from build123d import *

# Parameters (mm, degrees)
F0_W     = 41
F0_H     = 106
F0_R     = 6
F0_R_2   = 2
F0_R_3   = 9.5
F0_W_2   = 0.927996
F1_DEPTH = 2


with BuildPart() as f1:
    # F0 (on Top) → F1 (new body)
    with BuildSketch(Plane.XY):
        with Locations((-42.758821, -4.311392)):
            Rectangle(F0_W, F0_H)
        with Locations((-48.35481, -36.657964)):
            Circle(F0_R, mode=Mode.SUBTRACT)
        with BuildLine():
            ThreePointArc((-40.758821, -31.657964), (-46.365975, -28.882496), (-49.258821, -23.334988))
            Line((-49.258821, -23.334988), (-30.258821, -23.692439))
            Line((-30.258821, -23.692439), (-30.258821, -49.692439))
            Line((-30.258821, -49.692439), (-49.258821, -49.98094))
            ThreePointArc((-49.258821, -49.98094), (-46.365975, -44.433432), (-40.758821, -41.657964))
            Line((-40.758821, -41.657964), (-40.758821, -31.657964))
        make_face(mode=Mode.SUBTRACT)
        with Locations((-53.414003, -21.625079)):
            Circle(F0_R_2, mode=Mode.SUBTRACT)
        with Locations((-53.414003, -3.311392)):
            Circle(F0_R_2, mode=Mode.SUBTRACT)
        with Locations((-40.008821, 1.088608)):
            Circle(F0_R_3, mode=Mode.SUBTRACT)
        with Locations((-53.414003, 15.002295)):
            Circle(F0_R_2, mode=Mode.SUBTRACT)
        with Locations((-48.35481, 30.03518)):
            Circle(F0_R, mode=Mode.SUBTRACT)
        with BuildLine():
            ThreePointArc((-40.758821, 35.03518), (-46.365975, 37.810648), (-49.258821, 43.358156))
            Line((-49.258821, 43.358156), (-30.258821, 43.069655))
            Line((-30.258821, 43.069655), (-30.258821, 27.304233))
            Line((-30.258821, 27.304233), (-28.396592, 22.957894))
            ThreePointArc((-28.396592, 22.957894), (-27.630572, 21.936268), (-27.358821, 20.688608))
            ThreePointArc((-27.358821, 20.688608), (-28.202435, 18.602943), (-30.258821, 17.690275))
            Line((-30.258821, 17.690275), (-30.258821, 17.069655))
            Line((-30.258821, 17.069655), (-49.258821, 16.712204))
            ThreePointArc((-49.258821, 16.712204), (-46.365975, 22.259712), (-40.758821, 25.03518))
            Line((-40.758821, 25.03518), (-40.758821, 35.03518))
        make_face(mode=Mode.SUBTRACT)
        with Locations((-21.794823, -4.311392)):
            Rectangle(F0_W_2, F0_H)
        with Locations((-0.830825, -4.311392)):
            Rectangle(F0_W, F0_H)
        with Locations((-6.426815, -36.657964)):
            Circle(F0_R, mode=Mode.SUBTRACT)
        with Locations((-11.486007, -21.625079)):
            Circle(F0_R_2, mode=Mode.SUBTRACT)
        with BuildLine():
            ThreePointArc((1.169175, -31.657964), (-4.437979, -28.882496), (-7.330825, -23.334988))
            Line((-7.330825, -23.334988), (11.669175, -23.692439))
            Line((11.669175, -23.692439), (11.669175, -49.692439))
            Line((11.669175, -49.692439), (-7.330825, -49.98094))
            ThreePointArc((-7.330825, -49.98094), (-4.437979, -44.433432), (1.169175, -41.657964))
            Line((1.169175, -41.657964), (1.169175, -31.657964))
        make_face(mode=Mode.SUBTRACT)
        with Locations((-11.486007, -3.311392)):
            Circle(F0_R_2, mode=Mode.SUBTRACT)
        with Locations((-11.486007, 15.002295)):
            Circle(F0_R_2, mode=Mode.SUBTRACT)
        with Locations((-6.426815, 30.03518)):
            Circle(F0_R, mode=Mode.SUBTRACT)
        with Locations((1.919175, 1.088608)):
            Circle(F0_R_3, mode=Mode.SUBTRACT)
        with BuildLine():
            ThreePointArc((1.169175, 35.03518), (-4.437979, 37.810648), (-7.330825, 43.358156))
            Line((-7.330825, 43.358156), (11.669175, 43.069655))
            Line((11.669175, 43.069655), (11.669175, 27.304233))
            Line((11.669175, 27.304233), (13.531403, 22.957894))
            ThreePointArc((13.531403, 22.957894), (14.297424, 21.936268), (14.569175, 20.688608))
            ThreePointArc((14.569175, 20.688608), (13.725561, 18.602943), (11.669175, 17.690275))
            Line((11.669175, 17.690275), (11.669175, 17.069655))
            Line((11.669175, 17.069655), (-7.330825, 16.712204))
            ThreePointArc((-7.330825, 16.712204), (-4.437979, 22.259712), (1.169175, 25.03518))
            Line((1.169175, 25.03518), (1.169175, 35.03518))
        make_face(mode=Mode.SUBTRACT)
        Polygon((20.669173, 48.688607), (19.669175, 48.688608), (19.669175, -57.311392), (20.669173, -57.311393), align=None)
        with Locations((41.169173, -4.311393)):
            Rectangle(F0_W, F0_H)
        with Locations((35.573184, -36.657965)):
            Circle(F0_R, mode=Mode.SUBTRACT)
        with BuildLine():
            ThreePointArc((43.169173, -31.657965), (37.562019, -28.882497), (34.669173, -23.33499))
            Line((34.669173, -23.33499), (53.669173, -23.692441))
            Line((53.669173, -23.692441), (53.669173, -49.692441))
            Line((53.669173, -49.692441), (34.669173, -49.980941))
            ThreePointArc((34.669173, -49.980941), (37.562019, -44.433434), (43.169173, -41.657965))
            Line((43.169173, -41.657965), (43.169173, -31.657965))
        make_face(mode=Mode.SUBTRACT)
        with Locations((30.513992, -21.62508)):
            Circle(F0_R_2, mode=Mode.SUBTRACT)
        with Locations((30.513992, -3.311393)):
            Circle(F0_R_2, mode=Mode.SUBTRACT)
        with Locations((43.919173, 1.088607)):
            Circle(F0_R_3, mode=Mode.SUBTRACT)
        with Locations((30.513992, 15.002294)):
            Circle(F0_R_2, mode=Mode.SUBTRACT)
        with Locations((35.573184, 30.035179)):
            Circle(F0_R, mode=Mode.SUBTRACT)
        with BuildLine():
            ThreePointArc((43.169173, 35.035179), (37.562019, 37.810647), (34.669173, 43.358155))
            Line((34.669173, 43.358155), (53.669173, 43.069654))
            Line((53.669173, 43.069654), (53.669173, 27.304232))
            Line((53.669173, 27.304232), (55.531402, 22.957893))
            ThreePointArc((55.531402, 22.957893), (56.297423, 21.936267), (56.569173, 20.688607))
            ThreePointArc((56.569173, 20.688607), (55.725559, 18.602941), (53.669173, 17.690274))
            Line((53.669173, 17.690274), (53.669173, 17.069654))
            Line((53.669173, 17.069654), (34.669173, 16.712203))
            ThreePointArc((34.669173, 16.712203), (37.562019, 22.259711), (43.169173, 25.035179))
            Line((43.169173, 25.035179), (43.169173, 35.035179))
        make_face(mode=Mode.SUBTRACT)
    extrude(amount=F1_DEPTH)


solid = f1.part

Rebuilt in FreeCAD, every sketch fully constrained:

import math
import FreeCAD as App
import Part
import Sketcher
from FreeCAD import Vector

doc = App.newDocument("Part")
body = doc.addObject("PartDesign::Body", "Body")

# Sketch on XY plane
sketch1 = doc.addObject("Sketcher::SketchObject", "Sketch")
body.addObject(sketch1)
sketch1.AttachmentSupport = (doc.XY_Plane, [""])
sketch1.MapMode = "FlatFace"
sketch1.addGeometry(Part.LineSegment(Vector(-63.3, 48.7, 0), Vector(-63.3, -57.3, 0)), False)
sketch1.addGeometry(Part.LineSegment(Vector(-63.3, -57.3, 0), Vector(19.7, -57.3, 0)), False)
sketch1.addGeometry(Part.LineSegment(Vector(19.7, -57.3, 0), Vector(20.7, -57.3, 0)), False)
sketch1.addGeometry(Part.LineSegment(Vector(20.7, -57.3, 0), Vector(61.7, -57.3, 0)), False)
sketch1.addGeometry(Part.LineSegment(Vector(61.7, -57.3, 0), Vector(61.7, 48.7, 0)), False)
sketch1.addGeometry(Part.LineSegment(Vector(61.7, 48.7, 0), Vector(20.7, 48.7, 0)), False)
sketch1.addGeometry(Part.LineSegment(Vector(20.7, 48.7, 0), Vector(19.7, 48.7, 0)), False)
sketch1.addGeometry(Part.LineSegment(Vector(19.7, 48.7, 0), Vector(-63.3, 48.7, 0)), False)
sketch1.addGeometry(Part.Circle(Vector(-48.4, -36.7, 0), Vector(0, 0, 1), 6), False)
sketch1.addGeometry(Part.LineSegment(Vector(-40.8, -41.7, 0), Vector(-40.8, -31.7, 0)), False)
sketch1.addGeometry(Part.ArcOfCircle(Part.Circle(Vector(-39.3, -21.7, 0), Vector(0, 0, 1), 10.1), math.radians(-171), math.radians(-98)), False)
sketch1.addGeometry(Part.LineSegment(Vector(-49.3, -23.3, 0), Vector(-30.3, -23.7, 0)), False)
sketch1.addGeometry(Part.LineSegment(Vector(-30.3, -23.7, 0), Vector(-30.3, -49.7, 0)), False)
sketch1.addGeometry(Part.LineSegment(Vector(-30.3, -49.7, 0), Vector(-49.3, -50, 0)), False)
sketch1.addGeometry(Part.ArcOfCircle(Part.Circle(Vector(-39.3, -51.6, 0), Vector(0, 0, 1), 10.1), math.radians(98), math.radians(171)), False)
sketch1.addGeometry(Part.Circle(Vector(-6.4, -36.7, 0), Vector(0, 0, 1), 6), False)
sketch1.addGeometry(Part.Circle(Vector(-53.4, -21.6, 0), Vector(0, 0, 1), 2), False)
sketch1.addGeometry(Part.Circle(Vector(-11.5, -21.6, 0), Vector(0, 0, 1), 2), False)
sketch1.addGeometry(Part.LineSegment(Vector(1.2, -41.7, 0), Vector(1.2, -31.7, 0)), False)
sketch1.addGeometry(Part.ArcOfCircle(Part.Circle(Vector(2.6, -21.7, 0), Vector(0, 0, 1), 10.1), math.radians(-171), math.radians(-98)), False)
sketch1.addGeometry(Part.LineSegment(Vector(-7.3, -23.3, 0), Vector(11.7, -23.7, 0)), False)
sketch1.addGeometry(Part.LineSegment(Vector(11.7, -23.7, 0), Vector(11.7, -49.7, 0)), False)
sketch1.addGeometry(Part.LineSegment(Vector(11.7, -49.7, 0), Vector(-7.3, -50, 0)), False)
sketch1.addGeometry(Part.ArcOfCircle(Part.Circle(Vector(2.6, -51.6, 0), Vector(0, 0, 1), 10.1), math.radians(98), math.radians(171)), False)
sketch1.addGeometry(Part.Circle(Vector(35.6, -36.7, 0), Vector(0, 0, 1), 6), False)
sketch1.addGeometry(Part.LineSegment(Vector(43.2, -41.7, 0), Vector(43.2, -31.7, 0)), False)
sketch1.addGeometry(Part.ArcOfCircle(Part.Circle(Vector(44.6, -21.7, 0), Vector(0, 0, 1), 10.1), math.radians(-171), math.radians(-98)), False)
sketch1.addGeometry(Part.LineSegment(Vector(34.7, -23.3, 0), Vector(53.7, -23.7, 0)), False)
sketch1.addGeometry(Part.LineSegment(Vector(53.7, -23.7, 0), Vector(53.7, -49.7, 0)), False)
sketch1.addGeometry(Part.LineSegment(Vector(53.7, -49.7, 0), Vector(34.7, -50, 0)), False)
sketch1.addGeometry(Part.ArcOfCircle(Part.Circle(Vector(44.6, -51.6, 0), Vector(0, 0, 1), 10.1), math.radians(98), math.radians(171)), False)
sketch1.addGeometry(Part.Circle(Vector(30.5, -21.6, 0), Vector(0, 0, 1), 2), False)
sketch1.addGeometry(Part.Circle(Vector(30.5, -3.3, 0), Vector(0, 0, 1), 2), False)
sketch1.addGeometry(Part.Circle(Vector(-53.4, -3.3, 0), Vector(0, 0, 1), 2), False)
sketch1.addGeometry(Part.Circle(Vector(-40, 1.1, 0), Vector(0, 0, 1), 9.5), False)
sketch1.addGeometry(Part.Circle(Vector(-53.4, 15, 0), Vector(0, 0, 1), 2), False)
sketch1.addGeometry(Part.Circle(Vector(-11.5, -3.3, 0), Vector(0, 0, 1), 2), False)
sketch1.addGeometry(Part.Circle(Vector(-11.5, 15, 0), Vector(0, 0, 1), 2), False)
sketch1.addGeometry(Part.Circle(Vector(-48.4, 30, 0), Vector(0, 0, 1), 6), False)
sketch1.addGeometry(Part.LineSegment(Vector(-40.8, 25, 0), Vector(-40.8, 35, 0)), False)
sketch1.addGeometry(Part.ArcOfCircle(Part.Circle(Vector(-39.3, 45, 0), Vector(0, 0, 1), 10.1), math.radians(-171), math.radians(-98)), False)
sketch1.addGeometry(Part.LineSegment(Vector(-49.3, 43.4, 0), Vector(-30.3, 43.1, 0)), False)
sketch1.addGeometry(Part.LineSegment(Vector(-30.3, 43.1, 0), Vector(-30.3, 27.3, 0)), False)
sketch1.addGeometry(Part.LineSegment(Vector(-30.3, 27.3, 0), Vector(-28.4, 23, 0)), False)
sketch1.addGeometry(Part.ArcOfCircle(Part.Circle(Vector(-30.4, 20.7, 0), Vector(0, 0, 1), 3), math.radians(0), math.radians(49)), False)
sketch1.addGeometry(Part.ArcOfCircle(Part.Circle(Vector(-30.4, 20.7, 0), Vector(0, 0, 1), 3), math.radians(-88), math.radians(0)), False)
sketch1.addGeometry(Part.LineSegment(Vector(-30.3, 17.7, 0), Vector(-30.3, 17.1, 0)), False)
sketch1.addGeometry(Part.LineSegment(Vector(-30.3, 17.1, 0), Vector(-49.3, 16.7, 0)), False)
sketch1.addGeometry(Part.ArcOfCircle(Part.Circle(Vector(-39.3, 15.1, 0), Vector(0, 0, 1), 10.1), math.radians(98), math.radians(171)), False)
sketch1.addGeometry(Part.Circle(Vector(-6.4, 30, 0), Vector(0, 0, 1), 6), False)
sketch1.addGeometry(Part.Circle(Vector(1.9, 1.1, 0), Vector(0, 0, 1), 9.5), False)
sketch1.addGeometry(Part.Circle(Vector(43.9, 1.1, 0), Vector(0, 0, 1), 9.5), False)
sketch1.addGeometry(Part.Circle(Vector(30.5, 15, 0), Vector(0, 0, 1), 2), False)
sketch1.addGeometry(Part.LineSegment(Vector(1.2, 25, 0), Vector(1.2, 35, 0)), False)
sketch1.addGeometry(Part.ArcOfCircle(Part.Circle(Vector(2.6, 45, 0), Vector(0, 0, 1), 10.1), math.radians(-171), math.radians(-98)), False)
sketch1.addGeometry(Part.LineSegment(Vector(-7.3, 43.4, 0), Vector(11.7, 43.1, 0)), False)
sketch1.addGeometry(Part.LineSegment(Vector(11.7, 43.1, 0), Vector(11.7, 27.3, 0)), False)
sketch1.addGeometry(Part.LineSegment(Vector(11.7, 27.3, 0), Vector(13.5, 23, 0)), False)
sketch1.addGeometry(Part.ArcOfCircle(Part.Circle(Vector(11.6, 20.7, 0), Vector(0, 0, 1), 3), math.radians(0), math.radians(49)), False)
sketch1.addGeometry(Part.ArcOfCircle(Part.Circle(Vector(11.6, 20.7, 0), Vector(0, 0, 1), 3), math.radians(-88), math.radians(0)), False)
sketch1.addGeometry(Part.LineSegment(Vector(11.7, 17.7, 0), Vector(11.7, 17.1, 0)), False)
sketch1.addGeometry(Part.LineSegment(Vector(11.7, 17.1, 0), Vector(-7.3, 16.7, 0)), False)
sketch1.addGeometry(Part.ArcOfCircle(Part.Circle(Vector(2.6, 15.1, 0), Vector(0, 0, 1), 10.1), math.radians(98), math.radians(171)), False)
sketch1.addGeometry(Part.Circle(Vector(35.6, 30, 0), Vector(0, 0, 1), 6), False)
sketch1.addGeometry(Part.LineSegment(Vector(43.2, 25, 0), Vector(43.2, 35, 0)), False)
sketch1.addGeometry(Part.ArcOfCircle(Part.Circle(Vector(44.6, 45, 0), Vector(0, 0, 1), 10.1), math.radians(-171), math.radians(-98)), False)
sketch1.addGeometry(Part.LineSegment(Vector(34.7, 43.4, 0), Vector(53.7, 43.1, 0)), False)
sketch1.addGeometry(Part.LineSegment(Vector(53.7, 43.1, 0), Vector(53.7, 27.3, 0)), False)
sketch1.addGeometry(Part.LineSegment(Vector(53.7, 27.3, 0), Vector(55.5, 23, 0)), False)
sketch1.addGeometry(Part.ArcOfCircle(Part.Circle(Vector(53.6, 20.7, 0), Vector(0, 0, 1), 3), math.radians(0), math.radians(49)), False)
sketch1.addGeometry(Part.ArcOfCircle(Part.Circle(Vector(53.6, 20.7, 0), Vector(0, 0, 1), 3), math.radians(-88), math.radians(0)), False)
sketch1.addGeometry(Part.LineSegment(Vector(53.7, 17.7, 0), Vector(53.7, 17.1, 0)), False)
sketch1.addGeometry(Part.LineSegment(Vector(53.7, 17.1, 0), Vector(34.7, 16.7, 0)), False)
sketch1.addGeometry(Part.ArcOfCircle(Part.Circle(Vector(44.6, 15.1, 0), Vector(0, 0, 1), 10.1), math.radians(98), math.radians(171)), False)
sketch1.addConstraint(Sketcher.Constraint("Coincident", 0, 2, 1, 1))
sketch1.addConstraint(Sketcher.Constraint("Coincident", 1, 2, 2, 1))
sketch1.addConstraint(Sketcher.Constraint("Coincident", 2, 2, 3, 1))
sketch1.addConstraint(Sketcher.Constraint("Coincident", 3, 2, 4, 1))
sketch1.addConstraint(Sketcher.Constraint("Coincident", 4, 2, 5, 1))
sketch1.addConstraint(Sketcher.Constraint("Coincident", 5, 2, 6, 1))
sketch1.addConstraint(Sketcher.Constraint("Coincident", 6, 2, 7, 1))
sketch1.addConstraint(Sketcher.Constraint("Coincident", 7, 2, 0, 1))
sketch1.addConstraint(Sketcher.Constraint("Coincident", 9, 2, 10, 2))
sketch1.addConstraint(Sketcher.Constraint("Coincident", 10, 1, 11, 1))
sketch1.addConstraint(Sketcher.Constraint("Coincident", 11, 2, 12, 1))
sketch1.addConstraint(Sketcher.Constraint("Coincident", 12, 2, 13, 1))
sketch1.addConstraint(Sketcher.Constraint("Coincident", 13, 2, 14, 2))
sketch1.addConstraint(Sketcher.Constraint("Coincident", 14, 1, 9, 1))
sketch1.addConstraint(Sketcher.Constraint("Coincident", 18, 2, 19, 2))
sketch1.addConstraint(Sketcher.Constraint("Coincident", 19, 1, 20, 1))
sketch1.addConstraint(Sketcher.Constraint("Coincident", 20, 2, 21, 1))
sketch1.addConstraint(Sketcher.Constraint("Coincident", 21, 2, 22, 1))
sketch1.addConstraint(Sketcher.Constraint("Coincident", 22, 2, 23, 2))
sketch1.addConstraint(Sketcher.Constraint("Coincident", 23, 1, 18, 1))
sketch1.addConstraint(Sketcher.Constraint("Coincident", 25, 2, 26, 2))
sketch1.addConstraint(Sketcher.Constraint("Coincident", 26, 1, 27, 1))
sketch1.addConstraint(Sketcher.Constraint("Coincident", 27, 2, 28, 1))
sketch1.addConstraint(Sketcher.Constraint("Coincident", 28, 2, 29, 1))
sketch1.addConstraint(Sketcher.Constraint("Coincident", 29, 2, 30, 2))
sketch1.addConstraint(Sketcher.Constraint("Coincident", 30, 1, 25, 1))
sketch1.addConstraint(Sketcher.Constraint("Coincident", 39, 2, 40, 2))
sketch1.addConstraint(Sketcher.Constraint("Coincident", 40, 1, 41, 1))
sketch1.addConstraint(Sketcher.Constraint("Coincident", 41, 2, 42, 1))
sketch1.addConstraint(Sketcher.Constraint("Coincident", 42, 2, 43, 1))
sketch1.addConstraint(Sketcher.Constraint("Coincident", 43, 2, 44, 2))
sketch1.addConstraint(Sketcher.Constraint("Tangent", 44, 1, 45, 2))
sketch1.addConstraint(Sketcher.Constraint("Coincident", 45, 1, 46, 1))
sketch1.addConstraint(Sketcher.Constraint("Coincident", 46, 2, 47, 1))
sketch1.addConstraint(Sketcher.Constraint("Coincident", 47, 2, 48, 2))
sketch1.addConstraint(Sketcher.Constraint("Coincident", 48, 1, 39, 1))
sketch1.addConstraint(Sketcher.Constraint("Coincident", 53, 2, 54, 2))
sketch1.addConstraint(Sketcher.Constraint("Coincident", 54, 1, 55, 1))
sketch1.addConstraint(Sketcher.Constraint("Coincident", 55, 2, 56, 1))
sketch1.addConstraint(Sketcher.Constraint("Coincident", 56, 2, 57, 1))
sketch1.addConstraint(Sketcher.Constraint("Coincident", 57, 2, 58, 2))
sketch1.addConstraint(Sketcher.Constraint("Tangent", 58, 1, 59, 2))
sketch1.addConstraint(Sketcher.Constraint("Coincident", 59, 1, 60, 1))
sketch1.addConstraint(Sketcher.Constraint("Coincident", 60, 2, 61, 1))
sketch1.addConstraint(Sketcher.Constraint("Coincident", 61, 2, 62, 2))
sketch1.addConstraint(Sketcher.Constraint("Coincident", 62, 1, 53, 1))
sketch1.addConstraint(Sketcher.Constraint("Coincident", 64, 2, 65, 2))
sketch1.addConstraint(Sketcher.Constraint("Coincident", 65, 1, 66, 1))
sketch1.addConstraint(Sketcher.Constraint("Coincident", 66, 2, 67, 1))
sketch1.addConstraint(Sketcher.Constraint("Coincident", 67, 2, 68, 1))
sketch1.addConstraint(Sketcher.Constraint("Coincident", 68, 2, 69, 2))
sketch1.addConstraint(Sketcher.Constraint("Tangent", 69, 1, 70, 2))
sketch1.addConstraint(Sketcher.Constraint("Coincident", 70, 1, 71, 1))
sketch1.addConstraint(Sketcher.Constraint("Coincident", 71, 2, 72, 1))
sketch1.addConstraint(Sketcher.Constraint("Coincident", 72, 2, 73, 2))
sketch1.addConstraint(Sketcher.Constraint("Coincident", 73, 1, 64, 1))
sketch1.addConstraint(Sketcher.Constraint("Vertical", 0))
sketch1.addConstraint(Sketcher.Constraint("Horizontal", 1))
sketch1.addConstraint(Sketcher.Constraint("Horizontal", 2))
sketch1.addConstraint(Sketcher.Constraint("Horizontal", 3))
sketch1.addConstraint(Sketcher.Constraint("Vertical", 4))
sketch1.addConstraint(Sketcher.Constraint("Horizontal", 5))
sketch1.addConstraint(Sketcher.Constraint("Horizontal", 6))
sketch1.addConstraint(Sketcher.Constraint("Horizontal", 7))
sketch1.addConstraint(Sketcher.Constraint("Vertical", 9))
sketch1.addConstraint(Sketcher.Constraint("Vertical", 12))
sketch1.addConstraint(Sketcher.Constraint("Vertical", 18))
sketch1.addConstraint(Sketcher.Constraint("Vertical", 21))
sketch1.addConstraint(Sketcher.Constraint("Vertical", 25))
sketch1.addConstraint(Sketcher.Constraint("Vertical", 28))
sketch1.addConstraint(Sketcher.Constraint("Vertical", 39))
sketch1.addConstraint(Sketcher.Constraint("Vertical", 42))
sketch1.addConstraint(Sketcher.Constraint("Vertical", 46))
sketch1.addConstraint(Sketcher.Constraint("Vertical", 53))
sketch1.addConstraint(Sketcher.Constraint("Vertical", 56))
sketch1.addConstraint(Sketcher.Constraint("Vertical", 60))
sketch1.addConstraint(Sketcher.Constraint("Vertical", 64))
sketch1.addConstraint(Sketcher.Constraint("Vertical", 67))
sketch1.addConstraint(Sketcher.Constraint("Vertical", 71))
sketch1.addConstraint(Sketcher.Constraint("Equal", 10, 14))
sketch1.addConstraint(Sketcher.Constraint("Equal", 8, 15))
sketch1.addConstraint(Sketcher.Constraint("Equal", 16, 17))
sketch1.addConstraint(Sketcher.Constraint("Equal", 14, 19))
sketch1.addConstraint(Sketcher.Constraint("Equal", 19, 23))
sketch1.addConstraint(Sketcher.Constraint("Equal", 15, 24))
sketch1.addConstraint(Sketcher.Constraint("Equal", 23, 26))
sketch1.addConstraint(Sketcher.Constraint("Equal", 17, 31))
sketch1.addConstraint(Sketcher.Constraint("Equal", 31, 32))
sketch1.addConstraint(Sketcher.Constraint("Equal", 32, 33))
sketch1.addConstraint(Sketcher.Constraint("Equal", 33, 35))
sketch1.addConstraint(Sketcher.Constraint("Equal", 35, 36))
sketch1.addConstraint(Sketcher.Constraint("Equal", 36, 37))
sketch1.addConstraint(Sketcher.Constraint("Equal", 24, 38))
sketch1.addConstraint(Sketcher.Constraint("Equal", 26, 40))
sketch1.addConstraint(Sketcher.Constraint("Equal", 40, 48))
sketch1.addConstraint(Sketcher.Constraint("Equal", 38, 49))
sketch1.addConstraint(Sketcher.Constraint("Equal", 34, 50))
sketch1.addConstraint(Sketcher.Constraint("Equal", 50, 51))
sketch1.addConstraint(Sketcher.Constraint("Equal", 37, 52))
sketch1.addConstraint(Sketcher.Constraint("Equal", 48, 54))
sketch1.addConstraint(Sketcher.Constraint("Equal", 45, 58))
sketch1.addConstraint(Sketcher.Constraint("Equal", 58, 59))
sketch1.addConstraint(Sketcher.Constraint("Equal", 54, 62))
sketch1.addConstraint(Sketcher.Constraint("Equal", 49, 63))
sketch1.addConstraint(Sketcher.Constraint("Equal", 62, 65))
sketch1.addConstraint(Sketcher.Constraint("Equal", 59, 70))
sketch1.addConstraint(Sketcher.Constraint("Equal", 65, 73))
sketch1.addConstraint(Sketcher.Constraint("Parallel", 11, 20))
sketch1.addConstraint(Sketcher.Constraint("Parallel", 13, 22))
sketch1.addConstraint(Sketcher.Constraint("Parallel", 20, 27))
sketch1.addConstraint(Sketcher.Constraint("Parallel", 22, 29))
sketch1.addConstraint(Sketcher.Constraint("Parallel", 41, 55))
sketch1.addConstraint(Sketcher.Constraint("Parallel", 43, 57))
sketch1.addConstraint(Sketcher.Constraint("Parallel", 47, 61))
sketch1.addConstraint(Sketcher.Constraint("Parallel", 55, 66))
sketch1.addConstraint(Sketcher.Constraint("Parallel", 57, 68))
sketch1.addConstraint(Sketcher.Constraint("Parallel", 61, 72))
sketch1.addConstraint(Sketcher.Constraint("Horizontal", 8, 3, 15, 3))
sketch1.addConstraint(Sketcher.Constraint("Horizontal", 16, 3, 17, 3))
sketch1.addConstraint(Sketcher.Constraint("Horizontal", 10, 3, 19, 3))
sketch1.addConstraint(Sketcher.Constraint("Horizontal", 14, 3, 23, 3))
sketch1.addConstraint(Sketcher.Constraint("Horizontal", 15, 3, 24, 3))
sketch1.addConstraint(Sketcher.Constraint("Horizontal", 19, 3, 26, 3))
sketch1.addConstraint(Sketcher.Constraint("Horizontal", 17, 3, 31, 3))
sketch1.addConstraint(Sketcher.Constraint("Horizontal", 32, 3, 33, 3))
sketch1.addConstraint(Sketcher.Constraint("Horizontal", 33, 3, 36, 3))
sketch1.addConstraint(Sketcher.Constraint("Horizontal", 35, 3, 37, 3))
sketch1.addConstraint(Sketcher.Constraint("Horizontal", 38, 3, 49, 3))
sketch1.addConstraint(Sketcher.Constraint("Horizontal", 34, 3, 50, 3))
sketch1.addConstraint(Sketcher.Constraint("Horizontal", 50, 3, 51, 3))
sketch1.addConstraint(Sketcher.Constraint("Horizontal", 37, 3, 52, 3))
sketch1.addConstraint(Sketcher.Constraint("Horizontal", 40, 3, 54, 3))
sketch1.addConstraint(Sketcher.Constraint("Horizontal", 45, 3, 58, 3))
sketch1.addConstraint(Sketcher.Constraint("Horizontal", 48, 3, 62, 3))
sketch1.addConstraint(Sketcher.Constraint("Horizontal", 49, 3, 63, 3))
sketch1.addConstraint(Sketcher.Constraint("Horizontal", 54, 3, 65, 3))
sketch1.addConstraint(Sketcher.Constraint("Horizontal", 59, 3, 69, 3))
sketch1.addConstraint(Sketcher.Constraint("Horizontal", 62, 3, 73, 3))
sketch1.addConstraint(Sketcher.Constraint("Horizontal", 9, 2, 18, 2))
sketch1.addConstraint(Sketcher.Constraint("Horizontal", 10, 1, 19, 1))
sketch1.addConstraint(Sketcher.Constraint("Horizontal", 11, 2, 20, 2))
sketch1.addConstraint(Sketcher.Constraint("Horizontal", 12, 2, 21, 2))
sketch1.addConstraint(Sketcher.Constraint("Horizontal", 13, 2, 22, 2))
sketch1.addConstraint(Sketcher.Constraint("Horizontal", 18, 2, 25, 2))
sketch1.addConstraint(Sketcher.Constraint("Horizontal", 20, 2, 27, 2))
sketch1.addConstraint(Sketcher.Constraint("Horizontal", 22, 2, 29, 2))
sketch1.addConstraint(Sketcher.Constraint("Horizontal", 23, 1, 30, 1))
sketch1.addConstraint(Sketcher.Constraint("Horizontal", 69, 3, 44, 1))
sketch1.addConstraint(Sketcher.Constraint("Horizontal", 39, 2, 53, 2))
sketch1.addConstraint(Sketcher.Constraint("Horizontal", 40, 1, 54, 1))
sketch1.addConstraint(Sketcher.Constraint("Horizontal", 41, 2, 55, 2))
sketch1.addConstraint(Sketcher.Constraint("Horizontal", 42, 2, 56, 2))
sketch1.addConstraint(Sketcher.Constraint("Horizontal", 43, 2, 57, 2))
sketch1.addConstraint(Sketcher.Constraint("Horizontal", 44, 1, 58, 1))
sketch1.addConstraint(Sketcher.Constraint("Horizontal", 45, 1, 59, 1))
sketch1.addConstraint(Sketcher.Constraint("Horizontal", 46, 2, 60, 2))
sketch1.addConstraint(Sketcher.Constraint("Horizontal", 47, 2, 61, 2))
sketch1.addConstraint(Sketcher.Constraint("Horizontal", 48, 1, 62, 1))
sketch1.addConstraint(Sketcher.Constraint("Horizontal", 53, 2, 64, 2))
sketch1.addConstraint(Sketcher.Constraint("Horizontal", 54, 1, 65, 1))
sketch1.addConstraint(Sketcher.Constraint("Horizontal", 55, 2, 66, 2))
sketch1.addConstraint(Sketcher.Constraint("Horizontal", 56, 2, 67, 2))
sketch1.addConstraint(Sketcher.Constraint("Horizontal", 57, 2, 68, 2))
sketch1.addConstraint(Sketcher.Constraint("Horizontal", 58, 1, 69, 1))
sketch1.addConstraint(Sketcher.Constraint("Horizontal", 59, 1, 70, 1))
sketch1.addConstraint(Sketcher.Constraint("Horizontal", 60, 2, 71, 2))
sketch1.addConstraint(Sketcher.Constraint("Horizontal", 61, 2, 72, 2))
sketch1.addConstraint(Sketcher.Constraint("Horizontal", 62, 1, 73, 1))
sketch1.addConstraint(Sketcher.Constraint("Vertical", 10, 3, 14, 3))
sketch1.addConstraint(Sketcher.Constraint("Vertical", 31, 3, 32, 3))
sketch1.addConstraint(Sketcher.Constraint("Vertical", 16, 3, 33, 3))
sketch1.addConstraint(Sketcher.Constraint("Vertical", 33, 3, 35, 3))
sketch1.addConstraint(Sketcher.Constraint("Vertical", 17, 3, 36, 3))
sketch1.addConstraint(Sketcher.Constraint("Vertical", 36, 3, 37, 3))
sketch1.addConstraint(Sketcher.Constraint("Vertical", 8, 3, 38, 3))
sketch1.addConstraint(Sketcher.Constraint("Vertical", 14, 3, 40, 3))
sketch1.addConstraint(Sketcher.Constraint("Vertical", 40, 3, 48, 3))
sketch1.addConstraint(Sketcher.Constraint("Vertical", 15, 3, 49, 3))
sketch1.addConstraint(Sketcher.Constraint("Vertical", 32, 3, 52, 3))
sketch1.addConstraint(Sketcher.Constraint("Vertical", 23, 3, 54, 3))
sketch1.addConstraint(Sketcher.Constraint("Vertical", 24, 3, 63, 3))
sketch1.addConstraint(Sketcher.Constraint("Vertical", 26, 3, 65, 3))
sketch1.addConstraint(Sketcher.Constraint("Vertical", 2, 2, 5, 2))
sketch1.addConstraint(Sketcher.Constraint("Vertical", 1, 2, 6, 2))
sketch1.addConstraint(Sketcher.Constraint("Vertical", 10, 1, 13, 2))
sketch1.addConstraint(Sketcher.Constraint("Vertical", 26, 1, 29, 2))
sketch1.addConstraint(Sketcher.Constraint("Vertical", 14, 1, 39, 2))
sketch1.addConstraint(Sketcher.Constraint("Vertical", 13, 2, 40, 1))
sketch1.addConstraint(Sketcher.Constraint("Vertical", 12, 2, 41, 2))
sketch1.addConstraint(Sketcher.Constraint("Vertical", 42, 2, 45, 1))
sketch1.addConstraint(Sketcher.Constraint("Vertical", 40, 1, 47, 2))
sketch1.addConstraint(Sketcher.Constraint("Vertical", 28, 2, 66, 2))
sketch1.addConstraint(Sketcher.Constraint("Equal", 25, 39))
sketch1.addConstraint(Sketcher.Constraint("Equal", 29, 41))
sketch1.addConstraint(Sketcher.Constraint("Equal", 27, 47))
sketch1.addConstraint(Sketcher.Constraint("Diameter", 8, 12.0))
sketch1.addConstraint(Sketcher.Constraint("Diameter", 16, 4.0))
sketch1.addConstraint(Sketcher.Constraint("Diameter", 34, 19.0))
sketch1.addConstraint(Sketcher.Constraint("Radius", 45, 3.000001))
sketch1.addConstraint(Sketcher.Constraint("DistanceX", 2, 1, 2, 2, 0.999998))
sketch1.addConstraint(Sketcher.Constraint("DistanceX", 3, 1, 3, 2, 41.0))
sketch1.addConstraint(Sketcher.Constraint("DistanceY", 0, 2, 0, 1, 106.0))
sketch1.addConstraint(Sketcher.Constraint("DistanceY", 9, 1, 9, 2, 10.0))
sketch1.addConstraint(Sketcher.Constraint("DistanceY", 12, 2, 12, 1, 26.0))
sketch1.addConstraint(Sketcher.Constraint("Radius", 10, 10.089419))
sketch1.addConstraint(Sketcher.Constraint("Radius", 30, 10.089422))
sketch1.addConstraint(Sketcher.Constraint("DistanceY", 42, 2, 42, 1, 15.765422))
sketch1.addConstraint(Sketcher.Constraint("DistanceY", 46, 2, 46, 1, 0.62062))
sketch1.addConstraint(Sketcher.Constraint("Distance", 13, 19.00219))
sketch1.addConstraint(Sketcher.Constraint("DistanceX", 1, 1, 1, 2, 82.927996))
sketch1.addConstraint(Sketcher.Constraint("DistanceX", 8, 3, -1, 1, 48.35481))
sketch1.addConstraint(Sketcher.Constraint("DistanceX", 10, 3, -1, 1, 39.307142))
sketch1.addConstraint(Sketcher.Constraint("DistanceY", 16, 3, -1, 1, 21.625079))
sketch1.addConstraint(Sketcher.Constraint("DistanceX", -1, 1, 31, 3, 30.513992))
sketch1.addConstraint(Sketcher.Constraint("DistanceX", 34, 3, -1, 1, 40.008821))
sketch1.addConstraint(Sketcher.Constraint("DistanceY", -1, 1, 38, 3, 30.03518))
sketch1.addConstraint(Sketcher.Constraint("DistanceY", -1, 1, 40, 3, 45.019618))
sketch1.addConstraint(Sketcher.Constraint("DistanceX", 45, 3, -1, 1, 30.358822))
sketch1.addConstraint(Sketcher.Constraint("DistanceY", -1, 1, 45, 3, 20.688608))
sketch1.addConstraint(Sketcher.Constraint("DistanceY", -1, 1, 48, 3, 15.050742))
sketch1.addConstraint(Sketcher.Constraint("DistanceX", 0, 2, -1, 1, 63.258821))
sketch1.addConstraint(Sketcher.Constraint("DistanceY", 0, 2, -1, 1, 57.311392))
sketch1.addConstraint(Sketcher.Constraint("DistanceX", 10, 1, -1, 1, 49.258821))
sketch1.addConstraint(Sketcher.Constraint("DistanceY", 11, 2, -1, 1, 23.692439))
sketch1.addConstraint(Sketcher.Constraint("DistanceX", 43, 2, -1, 1, 28.396592))
sketch1.addConstraint(Sketcher.Constraint("DistanceY", 8, 3, -1, 1, 36.657964))
sketch1.addConstraint(Sketcher.Constraint("DistanceX", 15, 3, -1, 1, 6.426815))
sketch1.addConstraint(Sketcher.Constraint("DistanceX", 16, 3, -1, 1, 53.414003))
sketch1.addConstraint(Sketcher.Constraint("DistanceX", 17, 3, -1, 1, 11.486007))
sketch1.addConstraint(Sketcher.Constraint("DistanceX", -1, 1, 19, 3, 2.620854))
sketch1.addConstraint(Sketcher.Constraint("DistanceX", -1, 1, 24, 3, 35.573184))
sketch1.addConstraint(Sketcher.Constraint("DistanceX", -1, 1, 26, 3, 44.620852))
sketch1.addConstraint(Sketcher.Constraint("DistanceY", 32, 3, -1, 1, 3.311393))
sketch1.addConstraint(Sketcher.Constraint("DistanceY", -1, 1, 34, 3, 1.088608))
sketch1.addConstraint(Sketcher.Constraint("DistanceY", -1, 1, 35, 3, 15.002295))
sketch1.addConstraint(Sketcher.Constraint("DistanceX", -1, 1, 50, 3, 1.919175))
sketch1.addConstraint(Sketcher.Constraint("DistanceX", -1, 1, 51, 3, 43.919173))
pad1 = doc.addObject("PartDesign::Pad", "Pad")
body.addObject(pad1)
pad1.Profile = sketch1
pad1.Length = 2

doc.recompute()
